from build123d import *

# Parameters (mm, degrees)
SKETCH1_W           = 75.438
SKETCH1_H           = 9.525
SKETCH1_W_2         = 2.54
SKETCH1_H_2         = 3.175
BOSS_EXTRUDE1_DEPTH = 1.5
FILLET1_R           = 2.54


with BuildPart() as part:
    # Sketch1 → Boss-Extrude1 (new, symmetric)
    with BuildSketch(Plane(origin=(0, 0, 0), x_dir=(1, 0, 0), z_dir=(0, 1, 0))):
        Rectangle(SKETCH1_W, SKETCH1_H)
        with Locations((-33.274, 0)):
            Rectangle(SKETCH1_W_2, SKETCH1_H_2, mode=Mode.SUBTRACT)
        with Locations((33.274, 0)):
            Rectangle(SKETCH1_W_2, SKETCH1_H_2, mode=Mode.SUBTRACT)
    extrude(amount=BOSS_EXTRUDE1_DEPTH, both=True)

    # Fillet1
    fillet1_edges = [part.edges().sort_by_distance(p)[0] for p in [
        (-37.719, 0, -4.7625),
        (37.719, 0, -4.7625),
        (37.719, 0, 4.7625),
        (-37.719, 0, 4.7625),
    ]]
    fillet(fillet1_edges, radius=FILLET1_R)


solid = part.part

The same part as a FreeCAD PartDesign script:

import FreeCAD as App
import Part
import Sketcher
Q = App.Units.Quantity


def edges_at(feature, points):
    """Names of the edges that pass closest to the given points."""
    edges = feature.Shape.Edges
    near = lambda p: min(range(len(edges)), key=lambda i: edges[i].distToShape(Part.Vertex(*p))[0])
    return sorted({f"Edge{near(p) + 1}" for p in points})


def add_polygon(sketch, points):
    """Adds a closed chain of lines whose ends are joined by coincident constraints."""
    first, n = sketch.GeometryCount, len(points)
    for a, b in zip(points, points[1:] + points[:1]):
        sketch.addGeometry(Part.LineSegment(App.Vector(*a, 0), App.Vector(*b, 0)), False)
    for i in range(n):
        sketch.addConstraint(Sketcher.Constraint("Coincident", first + i, 2, first + (i + 1) % n, 1))

doc = App.newDocument("Part")
body = doc.addObject("PartDesign::Body", "Body")

# Sketch on XZ plane
sketch1 = body.newObject("Sketcher::SketchObject", "Sketch")
sketch1.AttachmentSupport = (doc.getObject("XZ_Plane"), [""])
sketch1.MapMode = "FlatFace"
add_polygon(sketch1, [(-37.7, -4.8), (-37.7, 4.8), (37.7, 4.8), (37.7, -4.8)])  # lines 0-3
add_polygon(sketch1, [(-32, 1.6), (-34.5, 1.6), (-34.5, -1.6), (-32, -1.6)])  # lines 4-7
add_polygon(sketch1, [(34.5, 1.6), (32, 1.6), (32, -1.6), (34.5, -1.6)])  # lines 8-11
sketch1.addConstraint(Sketcher.Constraint("Vertical", 0))
sketch1.addConstraint(Sketcher.Constraint("Horizontal", 1))
sketch1.addConstraint(Sketcher.Constraint("Vertical", 2))
sketch1.addConstraint(Sketcher.Constraint("Horizontal", 3))
sketch1.addConstraint(Sketcher.Constraint("Horizontal", 4))
sketch1.addConstraint(Sketcher.Constraint("Vertical", 5))
sketch1.addConstraint(Sketcher.Constraint("Horizontal", 6))
sketch1.addConstraint(Sketcher.Constraint("Vertical", 7))
sketch1.addConstraint(Sketcher.Constraint("Horizontal", 8))
sketch1.addConstraint(Sketcher.Constraint("Vertical", 9))
sketch1.addConstraint(Sketcher.Constraint("Horizontal", 10))
sketch1.addConstraint(Sketcher.Constraint("Vertical", 11))
sketch1.addConstraint(Sketcher.Constraint("Symmetric", 0, 2, 2, 2, -1, 1))
sketch1.addConstraint(Sketcher.Constraint("Symmetric", 6, 2, 8, 2, -1, 1))
sketch1.addConstraint(Sketcher.Constraint("Symmetric", 4, 2, 10, 2, -1, 1))
sketch1.addConstraint(Sketcher.Constraint("Horizontal", 7, 2, 8, 2))
sketch1.addConstraint(Sketcher.Constraint("DistanceX", 4, 2, 4, 1, Q("0.1 in")))
sketch1.addConstraint(Sketcher.Constraint("DistanceX", 1, 1, 1, 2, Q("2.97 in")))
sketch1.addConstraint(Sketcher.Constraint("DistanceY", 0, 1, 0, 2, Q("0.375 in")))
sketch1.addConstraint(Sketcher.Constraint("DistanceY", 5, 2, 5, 1, Q("0.125 in")))
sketch1.addConstraint(Sketcher.Constraint("DistanceX", 4, 2, -1, 1, Q("1.36 in")))
pad1 = body.newObject("PartDesign::Pad", "Pad")
pad1.Profile = sketch1
pad1.Length = 3
pad1.Midplane = True
doc.recompute()

fillet = body.newObject("PartDesign::Fillet", "Fillet")
fillet.Base = (pad1, edges_at(pad1, [
    (-37.719, 0, -4.763),
    (37.719, 0, -4.763),
    (37.719, 0, 4.763),
    (-37.719, 0, 4.763),
]))
fillet.Radius = Q("0.1 in")

doc.recompute()
